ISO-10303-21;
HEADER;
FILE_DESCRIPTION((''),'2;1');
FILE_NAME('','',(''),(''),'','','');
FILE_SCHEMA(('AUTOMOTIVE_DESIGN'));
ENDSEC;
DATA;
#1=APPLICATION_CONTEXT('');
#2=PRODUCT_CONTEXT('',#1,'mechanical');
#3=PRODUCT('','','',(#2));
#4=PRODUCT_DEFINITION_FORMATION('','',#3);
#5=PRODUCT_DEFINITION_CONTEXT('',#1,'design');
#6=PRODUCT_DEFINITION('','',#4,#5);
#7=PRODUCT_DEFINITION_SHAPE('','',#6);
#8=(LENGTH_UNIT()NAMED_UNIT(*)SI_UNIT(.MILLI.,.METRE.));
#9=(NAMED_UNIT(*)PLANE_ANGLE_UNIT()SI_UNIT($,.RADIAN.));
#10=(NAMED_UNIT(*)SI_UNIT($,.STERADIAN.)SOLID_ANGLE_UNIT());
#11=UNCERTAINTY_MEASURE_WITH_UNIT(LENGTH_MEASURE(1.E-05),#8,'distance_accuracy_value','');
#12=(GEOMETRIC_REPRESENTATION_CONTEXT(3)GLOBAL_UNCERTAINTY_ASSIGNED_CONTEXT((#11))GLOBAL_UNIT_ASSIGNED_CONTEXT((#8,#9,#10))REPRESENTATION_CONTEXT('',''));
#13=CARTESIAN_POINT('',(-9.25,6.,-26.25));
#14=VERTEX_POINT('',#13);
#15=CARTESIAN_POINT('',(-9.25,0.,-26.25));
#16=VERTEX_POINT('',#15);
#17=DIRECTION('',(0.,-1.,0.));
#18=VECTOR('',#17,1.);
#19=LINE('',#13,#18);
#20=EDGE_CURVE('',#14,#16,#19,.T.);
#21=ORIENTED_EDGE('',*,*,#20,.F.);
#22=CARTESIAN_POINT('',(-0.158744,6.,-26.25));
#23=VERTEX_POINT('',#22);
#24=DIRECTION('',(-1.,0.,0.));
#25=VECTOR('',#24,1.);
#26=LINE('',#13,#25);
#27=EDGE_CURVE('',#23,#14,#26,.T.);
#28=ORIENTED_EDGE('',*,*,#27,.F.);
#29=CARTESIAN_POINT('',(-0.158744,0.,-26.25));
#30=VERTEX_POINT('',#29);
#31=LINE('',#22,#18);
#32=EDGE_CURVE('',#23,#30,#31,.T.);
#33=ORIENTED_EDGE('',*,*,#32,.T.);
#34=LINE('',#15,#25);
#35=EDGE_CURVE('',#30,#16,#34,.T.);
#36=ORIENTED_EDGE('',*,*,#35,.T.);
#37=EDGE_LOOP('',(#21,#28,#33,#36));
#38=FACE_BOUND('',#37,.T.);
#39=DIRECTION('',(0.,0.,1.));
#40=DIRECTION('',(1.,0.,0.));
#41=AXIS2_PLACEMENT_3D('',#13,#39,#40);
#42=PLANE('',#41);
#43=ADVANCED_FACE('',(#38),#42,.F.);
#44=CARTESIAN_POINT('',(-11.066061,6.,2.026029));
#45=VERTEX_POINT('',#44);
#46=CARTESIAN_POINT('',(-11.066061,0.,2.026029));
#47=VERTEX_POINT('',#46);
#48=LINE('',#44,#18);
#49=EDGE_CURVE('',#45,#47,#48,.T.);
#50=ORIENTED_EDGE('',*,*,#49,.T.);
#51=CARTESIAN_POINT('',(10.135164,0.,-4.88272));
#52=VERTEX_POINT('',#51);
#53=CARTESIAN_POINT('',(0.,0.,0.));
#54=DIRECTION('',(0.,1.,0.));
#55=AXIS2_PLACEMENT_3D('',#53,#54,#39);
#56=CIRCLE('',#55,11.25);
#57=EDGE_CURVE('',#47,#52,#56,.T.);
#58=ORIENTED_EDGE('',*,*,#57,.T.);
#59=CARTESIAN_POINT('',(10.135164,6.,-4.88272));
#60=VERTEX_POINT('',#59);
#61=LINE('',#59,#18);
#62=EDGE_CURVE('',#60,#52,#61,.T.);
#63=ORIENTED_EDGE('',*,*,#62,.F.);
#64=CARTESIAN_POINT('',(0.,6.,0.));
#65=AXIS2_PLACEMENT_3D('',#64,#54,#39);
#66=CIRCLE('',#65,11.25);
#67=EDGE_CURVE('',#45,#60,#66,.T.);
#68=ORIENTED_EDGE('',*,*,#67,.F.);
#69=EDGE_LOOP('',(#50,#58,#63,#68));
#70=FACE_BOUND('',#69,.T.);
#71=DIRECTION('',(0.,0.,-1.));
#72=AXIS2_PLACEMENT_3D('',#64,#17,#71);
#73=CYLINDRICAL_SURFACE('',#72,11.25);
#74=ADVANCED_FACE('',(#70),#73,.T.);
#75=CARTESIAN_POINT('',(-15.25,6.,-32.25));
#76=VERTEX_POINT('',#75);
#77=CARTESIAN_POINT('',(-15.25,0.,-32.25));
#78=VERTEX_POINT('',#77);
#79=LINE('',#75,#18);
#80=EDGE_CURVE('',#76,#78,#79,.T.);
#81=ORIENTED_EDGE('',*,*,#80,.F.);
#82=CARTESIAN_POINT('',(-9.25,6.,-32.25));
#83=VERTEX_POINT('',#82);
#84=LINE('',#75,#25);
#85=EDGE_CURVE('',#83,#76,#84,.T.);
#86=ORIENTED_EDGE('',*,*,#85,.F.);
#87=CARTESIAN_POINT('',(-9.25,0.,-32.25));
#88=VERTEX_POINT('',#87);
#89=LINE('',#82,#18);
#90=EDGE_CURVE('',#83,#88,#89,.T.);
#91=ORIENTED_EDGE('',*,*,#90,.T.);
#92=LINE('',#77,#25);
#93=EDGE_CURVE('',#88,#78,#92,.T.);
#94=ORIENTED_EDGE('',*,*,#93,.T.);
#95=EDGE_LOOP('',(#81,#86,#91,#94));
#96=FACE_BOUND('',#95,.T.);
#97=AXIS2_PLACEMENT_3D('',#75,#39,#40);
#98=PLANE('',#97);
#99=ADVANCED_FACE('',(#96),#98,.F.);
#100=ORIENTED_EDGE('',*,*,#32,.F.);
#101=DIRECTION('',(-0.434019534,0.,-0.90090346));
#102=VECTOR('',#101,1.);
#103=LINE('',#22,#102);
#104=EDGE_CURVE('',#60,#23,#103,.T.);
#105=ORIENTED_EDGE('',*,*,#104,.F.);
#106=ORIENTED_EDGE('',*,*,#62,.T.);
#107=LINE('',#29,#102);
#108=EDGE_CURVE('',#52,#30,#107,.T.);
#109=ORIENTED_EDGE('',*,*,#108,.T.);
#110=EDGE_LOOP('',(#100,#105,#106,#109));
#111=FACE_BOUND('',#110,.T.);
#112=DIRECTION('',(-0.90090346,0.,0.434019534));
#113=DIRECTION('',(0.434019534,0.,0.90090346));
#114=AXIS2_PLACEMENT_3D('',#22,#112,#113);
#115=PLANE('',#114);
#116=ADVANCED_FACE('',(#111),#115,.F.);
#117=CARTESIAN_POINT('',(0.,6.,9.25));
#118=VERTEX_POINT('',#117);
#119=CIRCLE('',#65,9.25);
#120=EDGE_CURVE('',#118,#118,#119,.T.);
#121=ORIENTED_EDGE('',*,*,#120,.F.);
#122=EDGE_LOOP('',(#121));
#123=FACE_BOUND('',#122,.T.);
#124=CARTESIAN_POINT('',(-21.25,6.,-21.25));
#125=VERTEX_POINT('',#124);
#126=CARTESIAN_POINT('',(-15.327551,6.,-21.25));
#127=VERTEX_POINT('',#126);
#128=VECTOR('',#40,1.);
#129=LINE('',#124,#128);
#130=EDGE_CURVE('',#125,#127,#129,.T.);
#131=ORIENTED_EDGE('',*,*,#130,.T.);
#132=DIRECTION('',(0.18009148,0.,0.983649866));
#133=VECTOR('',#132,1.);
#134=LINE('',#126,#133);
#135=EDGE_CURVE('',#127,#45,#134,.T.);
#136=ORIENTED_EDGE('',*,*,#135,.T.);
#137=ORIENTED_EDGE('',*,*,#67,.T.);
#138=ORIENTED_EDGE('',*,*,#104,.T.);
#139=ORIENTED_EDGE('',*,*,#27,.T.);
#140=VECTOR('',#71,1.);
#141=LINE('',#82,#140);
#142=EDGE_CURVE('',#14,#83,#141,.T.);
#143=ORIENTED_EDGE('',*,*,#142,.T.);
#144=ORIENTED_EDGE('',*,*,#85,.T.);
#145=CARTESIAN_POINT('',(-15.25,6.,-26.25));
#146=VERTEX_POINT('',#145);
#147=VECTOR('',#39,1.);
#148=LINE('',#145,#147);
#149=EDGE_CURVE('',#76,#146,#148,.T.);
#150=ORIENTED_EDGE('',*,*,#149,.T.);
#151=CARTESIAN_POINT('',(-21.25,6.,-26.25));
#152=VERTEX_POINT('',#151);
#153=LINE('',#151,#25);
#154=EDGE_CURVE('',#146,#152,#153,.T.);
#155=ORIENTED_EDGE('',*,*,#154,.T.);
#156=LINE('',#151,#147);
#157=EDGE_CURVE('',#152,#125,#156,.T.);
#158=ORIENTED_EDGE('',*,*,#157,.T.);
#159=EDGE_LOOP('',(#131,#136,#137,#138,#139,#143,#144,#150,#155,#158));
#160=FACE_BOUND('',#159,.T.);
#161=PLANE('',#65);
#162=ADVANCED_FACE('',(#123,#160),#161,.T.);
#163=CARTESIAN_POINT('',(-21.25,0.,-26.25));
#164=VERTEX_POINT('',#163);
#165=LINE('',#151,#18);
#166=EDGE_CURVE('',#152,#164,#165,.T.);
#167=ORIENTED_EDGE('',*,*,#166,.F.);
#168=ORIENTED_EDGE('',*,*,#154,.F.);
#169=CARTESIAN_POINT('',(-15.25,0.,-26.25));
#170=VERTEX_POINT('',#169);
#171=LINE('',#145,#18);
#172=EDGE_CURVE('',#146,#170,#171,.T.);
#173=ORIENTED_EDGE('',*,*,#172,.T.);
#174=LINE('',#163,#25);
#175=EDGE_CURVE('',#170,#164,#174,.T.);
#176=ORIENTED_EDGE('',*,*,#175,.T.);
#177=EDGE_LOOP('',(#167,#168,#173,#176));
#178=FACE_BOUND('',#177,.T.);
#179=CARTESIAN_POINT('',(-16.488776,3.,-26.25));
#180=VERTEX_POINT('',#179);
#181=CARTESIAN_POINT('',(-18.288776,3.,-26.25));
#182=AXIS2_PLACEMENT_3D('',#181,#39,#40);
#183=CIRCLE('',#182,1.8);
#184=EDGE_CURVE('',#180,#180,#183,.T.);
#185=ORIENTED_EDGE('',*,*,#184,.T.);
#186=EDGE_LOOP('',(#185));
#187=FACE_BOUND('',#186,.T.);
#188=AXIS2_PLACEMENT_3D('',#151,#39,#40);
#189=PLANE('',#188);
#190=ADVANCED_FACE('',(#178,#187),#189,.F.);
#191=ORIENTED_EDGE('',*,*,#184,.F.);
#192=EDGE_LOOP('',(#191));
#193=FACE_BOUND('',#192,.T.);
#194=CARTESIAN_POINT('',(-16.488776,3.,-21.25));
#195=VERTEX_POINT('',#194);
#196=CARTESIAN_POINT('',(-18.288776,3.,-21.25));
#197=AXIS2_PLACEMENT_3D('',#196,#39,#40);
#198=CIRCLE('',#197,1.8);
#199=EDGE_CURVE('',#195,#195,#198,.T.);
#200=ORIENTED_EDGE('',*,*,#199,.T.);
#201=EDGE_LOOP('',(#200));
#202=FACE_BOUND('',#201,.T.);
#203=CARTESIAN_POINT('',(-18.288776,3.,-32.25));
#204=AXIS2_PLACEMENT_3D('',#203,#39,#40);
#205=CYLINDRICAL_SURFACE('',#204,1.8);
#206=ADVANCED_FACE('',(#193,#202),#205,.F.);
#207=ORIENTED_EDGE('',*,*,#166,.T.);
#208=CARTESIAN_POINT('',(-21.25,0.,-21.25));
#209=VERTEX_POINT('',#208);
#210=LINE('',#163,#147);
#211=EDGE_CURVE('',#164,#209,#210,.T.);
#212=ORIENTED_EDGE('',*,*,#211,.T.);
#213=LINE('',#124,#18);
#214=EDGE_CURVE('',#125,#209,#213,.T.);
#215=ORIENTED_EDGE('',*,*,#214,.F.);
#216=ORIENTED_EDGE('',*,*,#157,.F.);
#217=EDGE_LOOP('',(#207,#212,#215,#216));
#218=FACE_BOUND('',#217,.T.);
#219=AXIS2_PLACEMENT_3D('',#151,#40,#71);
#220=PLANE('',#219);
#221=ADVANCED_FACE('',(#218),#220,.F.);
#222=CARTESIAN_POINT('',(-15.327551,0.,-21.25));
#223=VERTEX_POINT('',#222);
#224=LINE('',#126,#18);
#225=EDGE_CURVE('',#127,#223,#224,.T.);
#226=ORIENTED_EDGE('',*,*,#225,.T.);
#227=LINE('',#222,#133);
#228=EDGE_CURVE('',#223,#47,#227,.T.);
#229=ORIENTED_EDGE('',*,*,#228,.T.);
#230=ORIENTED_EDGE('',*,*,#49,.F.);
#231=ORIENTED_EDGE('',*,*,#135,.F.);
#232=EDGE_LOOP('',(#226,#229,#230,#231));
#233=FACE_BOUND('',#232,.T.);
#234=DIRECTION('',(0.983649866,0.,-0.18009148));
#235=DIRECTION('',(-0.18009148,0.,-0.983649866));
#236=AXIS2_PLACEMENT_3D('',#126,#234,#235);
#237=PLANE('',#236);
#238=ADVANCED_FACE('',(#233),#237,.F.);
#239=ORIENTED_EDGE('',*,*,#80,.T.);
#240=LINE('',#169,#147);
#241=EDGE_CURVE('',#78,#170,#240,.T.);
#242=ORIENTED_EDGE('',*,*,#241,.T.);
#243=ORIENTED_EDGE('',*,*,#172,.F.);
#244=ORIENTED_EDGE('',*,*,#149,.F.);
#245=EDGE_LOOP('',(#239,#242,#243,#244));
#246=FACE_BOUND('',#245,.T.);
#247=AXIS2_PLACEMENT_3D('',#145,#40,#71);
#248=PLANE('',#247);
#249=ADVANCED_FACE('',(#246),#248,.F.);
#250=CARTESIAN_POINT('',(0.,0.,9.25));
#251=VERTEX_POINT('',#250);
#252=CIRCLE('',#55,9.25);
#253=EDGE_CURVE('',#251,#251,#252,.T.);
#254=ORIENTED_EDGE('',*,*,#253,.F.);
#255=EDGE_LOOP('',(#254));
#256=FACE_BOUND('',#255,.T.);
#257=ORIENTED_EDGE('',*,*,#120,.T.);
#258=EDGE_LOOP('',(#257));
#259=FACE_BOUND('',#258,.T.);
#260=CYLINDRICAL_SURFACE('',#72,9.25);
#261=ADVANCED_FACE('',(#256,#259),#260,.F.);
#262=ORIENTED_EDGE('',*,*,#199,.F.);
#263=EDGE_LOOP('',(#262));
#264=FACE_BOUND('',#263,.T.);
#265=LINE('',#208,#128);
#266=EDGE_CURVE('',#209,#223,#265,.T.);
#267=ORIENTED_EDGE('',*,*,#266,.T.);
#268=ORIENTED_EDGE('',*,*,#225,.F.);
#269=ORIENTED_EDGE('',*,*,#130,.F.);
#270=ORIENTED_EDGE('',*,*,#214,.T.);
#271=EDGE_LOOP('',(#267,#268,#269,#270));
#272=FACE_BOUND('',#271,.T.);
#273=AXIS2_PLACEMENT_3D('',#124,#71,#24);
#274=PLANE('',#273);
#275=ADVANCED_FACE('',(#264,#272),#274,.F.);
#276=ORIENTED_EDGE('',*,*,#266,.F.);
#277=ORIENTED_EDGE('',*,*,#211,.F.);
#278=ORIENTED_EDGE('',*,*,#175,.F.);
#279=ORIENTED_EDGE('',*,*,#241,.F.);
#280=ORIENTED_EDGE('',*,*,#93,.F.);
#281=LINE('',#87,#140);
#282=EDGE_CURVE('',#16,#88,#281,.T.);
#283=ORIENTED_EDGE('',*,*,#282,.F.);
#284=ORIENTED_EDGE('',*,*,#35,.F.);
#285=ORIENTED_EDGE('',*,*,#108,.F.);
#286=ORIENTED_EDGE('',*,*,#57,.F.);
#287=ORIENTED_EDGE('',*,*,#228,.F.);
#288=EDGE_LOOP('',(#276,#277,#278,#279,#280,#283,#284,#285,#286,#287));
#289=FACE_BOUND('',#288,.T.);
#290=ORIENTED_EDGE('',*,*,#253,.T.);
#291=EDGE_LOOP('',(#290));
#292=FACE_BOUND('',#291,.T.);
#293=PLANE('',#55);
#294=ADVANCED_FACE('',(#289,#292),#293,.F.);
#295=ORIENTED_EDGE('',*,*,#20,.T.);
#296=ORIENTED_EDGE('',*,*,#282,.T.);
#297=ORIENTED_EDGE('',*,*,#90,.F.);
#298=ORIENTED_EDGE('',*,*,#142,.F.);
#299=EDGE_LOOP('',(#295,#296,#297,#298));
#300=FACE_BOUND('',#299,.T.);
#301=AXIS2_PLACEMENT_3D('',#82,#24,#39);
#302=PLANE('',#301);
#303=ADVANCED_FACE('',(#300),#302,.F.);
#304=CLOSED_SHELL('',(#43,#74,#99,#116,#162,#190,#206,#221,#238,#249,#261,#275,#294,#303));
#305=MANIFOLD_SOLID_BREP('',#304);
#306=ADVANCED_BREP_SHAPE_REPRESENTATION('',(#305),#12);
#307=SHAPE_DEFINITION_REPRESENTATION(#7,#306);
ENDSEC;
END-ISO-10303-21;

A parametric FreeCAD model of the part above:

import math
import FreeCAD as App
import Part
import Sketcher
from FreeCAD import Vector
Q = App.Units.Quantity

doc = App.newDocument("Part")
params = doc.addObject("Spreadsheet::Sheet", "Params")
for row, (alias, value) in enumerate([
    ("sketch1_diameter", "18.5 mm"),
    ("sketch1_width", "6 mm"),
    ("sketch1_height", "5 mm"),
    ("sketch1_radius", "11.25 mm"),
    ("pad1_length", "6 mm"),
    ("sketch2_diameter", "3.6 mm"),
], start=1):
    params.set(f"A{row}", alias)
    params.set(f"B{row}", "=" + value)
    params.setAlias(f"B{row}", alias)

body = doc.addObject("PartDesign::Body", "Body")

# Sketch on XZ plane
sketch1 = body.newObject("Sketcher::SketchObject", "Sketch")
sketch1.AttachmentSupport = (doc.getObject("XZ_Plane"), [""])
sketch1.MapMode = "FlatFace"
sketch1.addGeometry([
    Part.LineSegment(Vector(-15, -26, 0), Vector(-21, -26, 0)),  # 0
    Part.LineSegment(Vector(-21, -26, 0), Vector(-21, -21, 0)),  # 1
    Part.LineSegment(Vector(-21, -21, 0), Vector(-15, -21, 0)),  # 2
    Part.LineSegment(Vector(-15, -21, 0), Vector(-11, 2, 0)),  # 3
    Part.ArcOfCircle(Part.Circle(Vector(0, 0, 0), Vector(0, 0, 1), 11), math.radians(-26), math.radians(170)),  # 4
    Part.LineSegment(Vector(10, -5, 0), Vector(0, -26, 0)),  # 5
    Part.LineSegment(Vector(0, -26, 0), Vector(-9, -26, 0)),  # 6
    Part.LineSegment(Vector(-9, -26, 0), Vector(-9, -32, 0)),  # 7
    Part.LineSegment(Vector(-9, -32, 0), Vector(-15, -32, 0)),  # 8
    Part.LineSegment(Vector(-15, -32, 0), Vector(-15, -26, 0)),  # 9
    Part.Circle(Vector(0, 0, 0), Vector(0, 0, 1), 9),  # 10
], False)
sketch1.addConstraint([
    Sketcher.Constraint("Coincident", 0, 2, 1, 1),
    Sketcher.Constraint("Coincident", 1, 2, 2, 1),
    Sketcher.Constraint("Coincident", 2, 2, 3, 1),
    Sketcher.Constraint("Tangent", 3, 2, 4, 2),
    Sketcher.Constraint("Tangent", 4, 1, 5, 1),
    Sketcher.Constraint("Coincident", 5, 2, 6, 1),
    Sketcher.Constraint("Coincident", 6, 2, 7, 1),
    Sketcher.Constraint("Coincident", 7, 2, 8, 1),
    Sketcher.Constraint("Coincident", 8, 2, 9, 1),
    Sketcher.Constraint("Coincident", 9, 2, 0, 1),
    Sketcher.Constraint("Horizontal", 0),
    Sketcher.Constraint("Vertical", 1),
    Sketcher.Constraint("Horizontal", 2),
    Sketcher.Constraint("Horizontal", 6),
    Sketcher.Constraint("Vertical", 7),
    Sketcher.Constraint("Horizontal", 8),
    Sketcher.Constraint("Vertical", 9),
    Sketcher.Constraint("Coincident", 4, 3, -1, 1),
    Sketcher.Constraint("Coincident", 10, 3, -1, 1),
    Sketcher.Constraint("Horizontal", 0, 2, 5, 2),
    Sketcher.Constraint("Equal", 0, 8),
    Sketcher.Constraint("Equal", 8, 7),
    Sketcher.Constraint("Diameter", 10, Q("18.5 mm")),
    Sketcher.Constraint("DistanceX", 0, 2, 0, 1, Q("6 mm")),
    Sketcher.Constraint("DistanceY", 1, 1, 1, 2, Q("5 mm")),
    Sketcher.Constraint("Radius", 4, Q("11.25 mm")),
    Sketcher.Constraint("DistanceX", 0, 2, -1, 1, Q("21.25 mm")),
    Sketcher.Constraint("DistanceY", 0, 2, -1, 1, Q("26.25 mm")),
    Sketcher.Constraint("DistanceX", 2, 1, 2, 2, Q("5.922449 mm")),
    Sketcher.Constraint("DistanceX", 6, 2, 6, 1, Q("9.091256 mm")),
])
sketch1.setExpression("Constraints[22]", "Params.sketch1_diameter")
sketch1.setExpression("Constraints[23]", "Params.sketch1_width")
sketch1.setExpression("Constraints[24]", "Params.sketch1_height")
sketch1.setExpression("Constraints[25]", "Params.sketch1_radius")
pad1 = body.newObject("PartDesign::Pad", "Pad")
pad1.Profile = sketch1
pad1.setExpression("Length", "Params.pad1_length")
pad1.Reversed = True

# Sketch on XY plane
sketch2 = body.newObject("Sketcher::SketchObject", "Sketch001")
sketch2.AttachmentSupport = (doc.getObject("XY_Plane"), [""])
sketch2.MapMode = "FlatFace"
sketch2.AttachmentOffset = App.Placement(Vector(0, 0, -21.25), App.Rotation())
sketch2.addGeometry(Part.Circle(Vector(-18.3, 3, 0), Vector(0, 0, 1), 1.8), False)
sketch2.addConstraint([
    Sketcher.Constraint("Diameter", 0, Q("3.6 mm")),
    Sketcher.Constraint("DistanceY", -1, 1, 0, 3, Q("3 mm")),
    Sketcher.Constraint("DistanceX", 0, 3, -1, 1, Q("18.288776 mm")),
])
sketch2.setExpression("Constraints[0]", "Params.sketch2_diameter")
pocket1 = body.newObject("PartDesign::Pocket", "Pocket")
pocket1.Profile = sketch2
pocket1.Type = "ThroughAll"

doc.recompute()
